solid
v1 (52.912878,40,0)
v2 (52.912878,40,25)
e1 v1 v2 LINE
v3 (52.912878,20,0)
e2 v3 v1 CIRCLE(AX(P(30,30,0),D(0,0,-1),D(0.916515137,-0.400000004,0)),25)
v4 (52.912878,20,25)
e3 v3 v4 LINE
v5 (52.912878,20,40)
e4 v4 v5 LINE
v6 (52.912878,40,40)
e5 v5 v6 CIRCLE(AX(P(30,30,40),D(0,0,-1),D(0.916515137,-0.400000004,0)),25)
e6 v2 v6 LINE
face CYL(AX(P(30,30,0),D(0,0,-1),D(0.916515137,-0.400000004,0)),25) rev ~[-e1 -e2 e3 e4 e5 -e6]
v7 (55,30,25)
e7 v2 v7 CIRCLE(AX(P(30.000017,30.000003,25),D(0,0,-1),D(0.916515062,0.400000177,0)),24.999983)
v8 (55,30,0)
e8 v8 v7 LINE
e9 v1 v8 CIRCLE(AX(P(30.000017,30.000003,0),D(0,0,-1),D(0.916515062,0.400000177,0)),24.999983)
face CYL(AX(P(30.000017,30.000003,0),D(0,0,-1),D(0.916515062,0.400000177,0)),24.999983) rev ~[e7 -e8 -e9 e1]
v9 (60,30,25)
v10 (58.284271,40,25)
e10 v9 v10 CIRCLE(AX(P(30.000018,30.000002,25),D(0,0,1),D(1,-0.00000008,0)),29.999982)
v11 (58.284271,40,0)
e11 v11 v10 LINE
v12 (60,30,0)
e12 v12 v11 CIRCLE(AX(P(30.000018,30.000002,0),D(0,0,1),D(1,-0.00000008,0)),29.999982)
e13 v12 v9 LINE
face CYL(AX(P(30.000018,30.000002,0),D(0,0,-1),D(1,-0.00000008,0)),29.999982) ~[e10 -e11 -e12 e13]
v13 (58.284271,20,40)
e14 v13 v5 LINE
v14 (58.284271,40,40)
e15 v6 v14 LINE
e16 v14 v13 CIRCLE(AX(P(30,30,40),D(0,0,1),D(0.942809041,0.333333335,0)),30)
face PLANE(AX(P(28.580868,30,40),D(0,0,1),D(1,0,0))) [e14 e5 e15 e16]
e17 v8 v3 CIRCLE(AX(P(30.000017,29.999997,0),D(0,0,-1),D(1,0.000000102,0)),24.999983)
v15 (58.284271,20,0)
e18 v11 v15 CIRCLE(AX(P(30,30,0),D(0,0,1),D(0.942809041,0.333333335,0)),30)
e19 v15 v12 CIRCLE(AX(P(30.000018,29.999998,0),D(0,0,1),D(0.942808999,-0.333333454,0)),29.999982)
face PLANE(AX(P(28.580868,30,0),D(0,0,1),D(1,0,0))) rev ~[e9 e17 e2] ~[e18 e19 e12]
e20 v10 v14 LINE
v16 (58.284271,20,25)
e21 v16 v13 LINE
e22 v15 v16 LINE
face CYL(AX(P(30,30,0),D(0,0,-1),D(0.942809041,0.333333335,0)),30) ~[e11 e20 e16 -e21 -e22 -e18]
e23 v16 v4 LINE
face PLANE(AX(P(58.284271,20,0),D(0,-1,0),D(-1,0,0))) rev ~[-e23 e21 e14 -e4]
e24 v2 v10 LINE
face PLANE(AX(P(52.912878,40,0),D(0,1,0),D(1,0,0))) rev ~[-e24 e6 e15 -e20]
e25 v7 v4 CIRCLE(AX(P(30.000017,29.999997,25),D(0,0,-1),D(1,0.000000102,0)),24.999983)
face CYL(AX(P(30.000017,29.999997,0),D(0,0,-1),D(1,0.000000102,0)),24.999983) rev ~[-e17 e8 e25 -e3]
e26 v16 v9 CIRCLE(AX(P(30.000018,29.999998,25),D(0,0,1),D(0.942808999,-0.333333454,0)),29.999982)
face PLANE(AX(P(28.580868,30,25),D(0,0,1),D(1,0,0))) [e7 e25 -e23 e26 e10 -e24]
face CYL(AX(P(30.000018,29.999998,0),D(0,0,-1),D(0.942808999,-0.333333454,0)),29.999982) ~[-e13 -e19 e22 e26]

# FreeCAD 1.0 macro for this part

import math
import FreeCAD as App
import Part
import Sketcher
from FreeCAD import Vector

doc = App.newDocument("Part")
params = doc.addObject("Spreadsheet::Sheet", "Params")
for row, (alias, value) in enumerate([
    ("sketch1_radius", "30 mm"),
    ("sketch1_radius2", "25 mm"),
    ("pad1_length", "40 mm"),
    ("sketch2_radius", "30 mm"),
    ("sketch2_radius2", "25 mm"),
    ("pad2_length", "25 mm"),
], start=1):
    params.set(f"A{row}", alias)
    params.set(f"B{row}", "=" + value)
    params.setAlias(f"B{row}", alias)

body = doc.addObject("PartDesign::Body", "Body")

# Sketch on XY plane
sketch1 = doc.addObject("Sketcher::SketchObject", "Sketch")
body.addObject(sketch1)
sketch1.AttachmentSupport = (doc.XY_Plane, [""])
sketch1.MapMode = "FlatFace"
sketch1.addGeometry(Part.LineSegment(Vector(53, 40, 0), Vector(58, 40, 0)), False)
sketch1.addGeometry(Part.ArcOfCircle(Part.Circle(Vector(30, 30, 0), Vector(0, 0, 1), 30), math.radians(19), math.radians(341)), False)
sketch1.addGeometry(Part.LineSegment(Vector(58, 20, 0), Vector(53, 20, 0)), False)
sketch1.addGeometry(Part.ArcOfCircle(Part.Circle(Vector(30, 30, 0), Vector(0, 0, 1), 25), math.radians(24), math.radians(336)), False)
sketch1.addConstraint(Sketcher.Constraint("Coincident", 0, 2, 1, 1))
sketch1.addConstraint(Sketcher.Constraint("Coincident", 1, 2, 2, 1))
sketch1.addConstraint(Sketcher.Constraint("Coincident", 2, 2, 3, 2))
sketch1.addConstraint(Sketcher.Constraint("Coincident", 3, 1, 0, 1))
sketch1.addConstraint(Sketcher.Constraint("Horizontal", 0))
sketch1.addConstraint(Sketcher.Constraint("Horizontal", 2))
sketch1.addConstraint(Sketcher.Constraint("Coincident", 3, 3, 1, 3))
sketch1.addConstraint(Sketcher.Constraint("Vertical", 0, 2, 1, 2))
sketch1.addConstraint(Sketcher.Constraint("Radius", 1, 30.0))
sketch1.addConstraint(Sketcher.Constraint("Radius", 3, 25.0))
sketch1.addConstraint(Sketcher.Constraint("DistanceX", -1, 1, 1, 3, 30.0))
sketch1.addConstraint(Sketcher.Constraint("DistanceY", -1, 1, 1, 3, 30.0))
sketch1.addConstraint(Sketcher.Constraint("DistanceY", -1, 1, 0, 2, 40.0))
sketch1.setExpression("Constraints[8]", "Params.sketch1_radius")
sketch1.setExpression("Constraints[9]", "Params.sketch1_radius2")
pad1 = doc.addObject("PartDesign::Pad", "Pad")
body.addObject(pad1)
pad1.Profile = sketch1
pad1.setExpression("Length", "Params.pad1_length")

# Sketch on XY plane
sketch2 = doc.addObject("Sketcher::SketchObject", "Sketch001")
body.addObject(sketch2)
sketch2.AttachmentSupport = (doc.XY_Plane, [""])
sketch2.MapMode = "FlatFace"
sketch2.addGeometry(Part.ArcOfCircle(Part.Circle(Vector(30, 30, 0), Vector(0, 0, 1), 30), math.radians(19), math.radians(341)), False)
sketch2.addGeometry(Part.ArcOfCircle(Part.Circle(Vector(30, 30, 0), Vector(0, 0, 1), 30), math.radians(-19.47), math.radians(0)), False)
sketch2.addGeometry(Part.ArcOfCircle(Part.Circle(Vector(30, 30, 0), Vector(0, 0, 1), 30), math.radians(0), math.radians(19.47)), False)
sketch2.addGeometry(Part.ArcOfCircle(Part.Circle(Vector(30, 30, 0), Vector(0, 0, 1), 25), math.radians(24), math.radians(336)), False)
sketch2.addGeometry(Part.ArcOfCircle(Part.Circle(Vector(30, 30, 0), Vector(0, 0, 1), 25), math.radians(0), math.radians(24)), False)
sketch2.addGeometry(Part.ArcOfCircle(Part.Circle(Vector(30, 30, 0), Vector(0, 0, 1), 25), math.radians(-24), math.radians(0)), False)
sketch2.addConstraint(Sketcher.Constraint("Tangent", 0, 2, 1, 1))
sketch2.addConstraint(Sketcher.Constraint("Tangent", 1, 2, 2, 1))
sketch2.addConstraint(Sketcher.Constraint("Tangent", 2, 2, 0, 1))
sketch2.addConstraint(Sketcher.Constraint("Tangent", 3, 1, 4, 2))
sketch2.addConstraint(Sketcher.Constraint("Tangent", 4, 1, 5, 2))
sketch2.addConstraint(Sketcher.Constraint("Tangent", 5, 1, 3, 2))
sketch2.addConstraint(Sketcher.Constraint("Coincident", 3, 3, 0, 3))
sketch2.addConstraint(Sketcher.Constraint("Horizontal", 3, 3, 1, 2))
sketch2.addConstraint(Sketcher.Constraint("Horizontal", 2, 2, 3, 1))
sketch2.addConstraint(Sketcher.Constraint("Horizontal", 1, 2, 4, 1))
sketch2.addConstraint(Sketcher.Constraint("Horizontal", 0, 2, 5, 1))
sketch2.addConstraint(Sketcher.Constraint("Vertical", 0, 2, 2, 2))
sketch2.addConstraint(Sketcher.Constraint("Radius", 0, 30.0))
sketch2.addConstraint(Sketcher.Constraint("Radius", 3, 25.0))
sketch2.addConstraint(Sketcher.Constraint("DistanceX", -1, 1, 0, 3, 30.0))
sketch2.addConstraint(Sketcher.Constraint("DistanceY", -1, 1, 0, 3, 30.0))
sketch2.addConstraint(Sketcher.Constraint("DistanceY", -1, 1, 0, 2, 20.0))
sketch2.setExpression("Constraints[12]", "Params.sketch2_radius")
sketch2.setExpression("Constraints[13]", "Params.sketch2_radius2")
pad2 = doc.addObject("PartDesign::Pad", "Pad001")
body.addObject(pad2)
pad2.Profile = sketch2
pad2.setExpression("Length", "Params.pad2_length")

doc.recompute()
